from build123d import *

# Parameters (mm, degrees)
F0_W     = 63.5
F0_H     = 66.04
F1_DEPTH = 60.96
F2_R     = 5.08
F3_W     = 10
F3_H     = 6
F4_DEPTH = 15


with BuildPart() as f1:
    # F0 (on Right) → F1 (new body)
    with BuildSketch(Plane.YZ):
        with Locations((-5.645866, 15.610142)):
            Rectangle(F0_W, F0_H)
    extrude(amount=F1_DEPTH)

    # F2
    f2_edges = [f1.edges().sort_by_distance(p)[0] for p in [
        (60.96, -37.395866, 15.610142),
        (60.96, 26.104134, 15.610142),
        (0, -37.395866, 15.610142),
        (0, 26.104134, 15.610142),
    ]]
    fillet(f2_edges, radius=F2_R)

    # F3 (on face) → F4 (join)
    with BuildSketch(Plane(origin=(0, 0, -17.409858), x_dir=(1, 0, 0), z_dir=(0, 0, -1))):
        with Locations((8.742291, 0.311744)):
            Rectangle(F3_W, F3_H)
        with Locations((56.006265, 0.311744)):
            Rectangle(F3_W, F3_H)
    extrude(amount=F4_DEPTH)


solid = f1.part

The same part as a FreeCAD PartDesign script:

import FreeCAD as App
import Part
import Sketcher
from FreeCAD import Vector
Q = App.Units.Quantity


def edges_at(feature, points):
    """Names of the edges that pass closest to the given points."""
    edges = feature.Shape.Edges
    near = lambda p: min(range(len(edges)), key=lambda i: edges[i].distToShape(Part.Vertex(*p))[0])
    return sorted({f"Edge{near(p) + 1}" for p in points})

doc = App.newDocument("Part")
body = doc.addObject("PartDesign::Body", "Body")

sketch1 = body.newObject("Sketcher::SketchObject", "Sketch")
sketch1.AttachmentSupport = (doc.getObject("YZ_Plane"), [""])
sketch1.MapMode = "FlatFace"
sketch1.addGeometry([
    Part.LineSegment(Vector(-37, 49, 0), Vector(-37, -17, 0)),
    Part.LineSegment(Vector(-37, -17, 0), Vector(26, -17, 0)),
    Part.LineSegment(Vector(26, -17, 0), Vector(26, 49, 0)),
    Part.LineSegment(Vector(26, 49, 0), Vector(-37, 49, 0)),
], False)
sketch1.addConstraint([
    Sketcher.Constraint("Coincident", 0, 2, 1, 1),
    Sketcher.Constraint("Coincident", 1, 2, 2, 1),
    Sketcher.Constraint("Coincident", 2, 2, 3, 1),
    Sketcher.Constraint("Coincident", 3, 2, 0, 1),
    Sketcher.Constraint("Vertical", 0),
    Sketcher.Constraint("Horizontal", 1),
    Sketcher.Constraint("Vertical", 2),
    Sketcher.Constraint("Horizontal", 3),
    Sketcher.Constraint("DistanceX", 1, 1, 1, 2, Q("2.5 in")),
    Sketcher.Constraint("DistanceY", 0, 2, 0, 1, Q("2.6 in")),
    Sketcher.Constraint("DistanceY", 0, 2, -1, 1, 17.409858),
    Sketcher.Constraint("DistanceX", 0, 2, -1, 1, 37.395866),
])
pad1 = body.newObject("PartDesign::Pad", "Pad")
pad1.Profile = sketch1
pad1.Length = Q("2.4 in")
doc.recompute()

fillet = body.newObject("PartDesign::Fillet", "Fillet")
fillet.Base = (pad1, edges_at(pad1, [
    (60.96, -37.396, 15.61),
    (60.96, 26.104, 15.61),
    (0, -37.396, 15.61),
    (0, 26.104, 15.61),
]))
fillet.Radius = Q("0.2 in")

sketch2 = body.newObject("Sketcher::SketchObject", "Sketch001")
sketch2.AttachmentSupport = (doc.getObject("XY_Plane"), [""])
sketch2.MapMode = "FlatFace"
sketch2.AttachmentOffset = App.Placement(Vector(0, 0, -17.409858), App.Rotation())
sketch2.addGeometry([
    Part.LineSegment(Vector(4, -3, 0), Vector(4, 3, 0)),
    Part.LineSegment(Vector(4, 3, 0), Vector(14, 3, 0)),
    Part.LineSegment(Vector(14, 3, 0), Vector(14, -3, 0)),
    Part.LineSegment(Vector(14, -3, 0), Vector(4, -3, 0)),
    Part.LineSegment(Vector(51, -3, 0), Vector(51, 3, 0)),
    Part.LineSegment(Vector(51, 3, 0), Vector(61, 3, 0)),
    Part.LineSegment(Vector(61, 3, 0), Vector(61, -3, 0)),
    Part.LineSegment(Vector(61, -3, 0), Vector(51, -3, 0)),
], False)
sketch2.addConstraint([
    Sketcher.Constraint("Coincident", 0, 2, 1, 1),
    Sketcher.Constraint("Coincident", 1, 2, 2, 1),
    Sketcher.Constraint("Coincident", 2, 2, 3, 1),
    Sketcher.Constraint("Coincident", 3, 2, 0, 1),
    Sketcher.Constraint("Coincident", 4, 2, 5, 1),
    Sketcher.Constraint("Coincident", 5, 2, 6, 1),
    Sketcher.Constraint("Coincident", 6, 2, 7, 1),
    Sketcher.Constraint("Coincident", 7, 2, 4, 1),
    Sketcher.Constraint("Vertical", 0),
    Sketcher.Constraint("Horizontal", 1),
    Sketcher.Constraint("Vertical", 2),
    Sketcher.Constraint("Horizontal", 3),
    Sketcher.Constraint("Vertical", 4),
    Sketcher.Constraint("Horizontal", 5),
    Sketcher.Constraint("Vertical", 6),
    Sketcher.Constraint("Horizontal", 7),
    Sketcher.Constraint("Horizontal", 1, 2, 4, 2),
    Sketcher.Constraint("Horizontal", 3, 2, 6, 2),
    Sketcher.Constraint("Equal", 3, 5),
    Sketcher.Constraint("DistanceX", 1, 1, 1, 2, 10.0),
    Sketcher.Constraint("DistanceY", 0, 1, 0, 2, 6.0),
    Sketcher.Constraint("DistanceX", -1, 1, 0, 2, 3.742291),
    Sketcher.Constraint("DistanceY", -1, 1, 0, 2, 2.688256),
    Sketcher.Constraint("DistanceX", -1, 1, 4, 2, 51.006265),
])
pad2 = body.newObject("PartDesign::Pad", "Pad001")
pad2.Profile = sketch2
pad2.Length = 15
pad2.Reversed = True

doc.recompute()
